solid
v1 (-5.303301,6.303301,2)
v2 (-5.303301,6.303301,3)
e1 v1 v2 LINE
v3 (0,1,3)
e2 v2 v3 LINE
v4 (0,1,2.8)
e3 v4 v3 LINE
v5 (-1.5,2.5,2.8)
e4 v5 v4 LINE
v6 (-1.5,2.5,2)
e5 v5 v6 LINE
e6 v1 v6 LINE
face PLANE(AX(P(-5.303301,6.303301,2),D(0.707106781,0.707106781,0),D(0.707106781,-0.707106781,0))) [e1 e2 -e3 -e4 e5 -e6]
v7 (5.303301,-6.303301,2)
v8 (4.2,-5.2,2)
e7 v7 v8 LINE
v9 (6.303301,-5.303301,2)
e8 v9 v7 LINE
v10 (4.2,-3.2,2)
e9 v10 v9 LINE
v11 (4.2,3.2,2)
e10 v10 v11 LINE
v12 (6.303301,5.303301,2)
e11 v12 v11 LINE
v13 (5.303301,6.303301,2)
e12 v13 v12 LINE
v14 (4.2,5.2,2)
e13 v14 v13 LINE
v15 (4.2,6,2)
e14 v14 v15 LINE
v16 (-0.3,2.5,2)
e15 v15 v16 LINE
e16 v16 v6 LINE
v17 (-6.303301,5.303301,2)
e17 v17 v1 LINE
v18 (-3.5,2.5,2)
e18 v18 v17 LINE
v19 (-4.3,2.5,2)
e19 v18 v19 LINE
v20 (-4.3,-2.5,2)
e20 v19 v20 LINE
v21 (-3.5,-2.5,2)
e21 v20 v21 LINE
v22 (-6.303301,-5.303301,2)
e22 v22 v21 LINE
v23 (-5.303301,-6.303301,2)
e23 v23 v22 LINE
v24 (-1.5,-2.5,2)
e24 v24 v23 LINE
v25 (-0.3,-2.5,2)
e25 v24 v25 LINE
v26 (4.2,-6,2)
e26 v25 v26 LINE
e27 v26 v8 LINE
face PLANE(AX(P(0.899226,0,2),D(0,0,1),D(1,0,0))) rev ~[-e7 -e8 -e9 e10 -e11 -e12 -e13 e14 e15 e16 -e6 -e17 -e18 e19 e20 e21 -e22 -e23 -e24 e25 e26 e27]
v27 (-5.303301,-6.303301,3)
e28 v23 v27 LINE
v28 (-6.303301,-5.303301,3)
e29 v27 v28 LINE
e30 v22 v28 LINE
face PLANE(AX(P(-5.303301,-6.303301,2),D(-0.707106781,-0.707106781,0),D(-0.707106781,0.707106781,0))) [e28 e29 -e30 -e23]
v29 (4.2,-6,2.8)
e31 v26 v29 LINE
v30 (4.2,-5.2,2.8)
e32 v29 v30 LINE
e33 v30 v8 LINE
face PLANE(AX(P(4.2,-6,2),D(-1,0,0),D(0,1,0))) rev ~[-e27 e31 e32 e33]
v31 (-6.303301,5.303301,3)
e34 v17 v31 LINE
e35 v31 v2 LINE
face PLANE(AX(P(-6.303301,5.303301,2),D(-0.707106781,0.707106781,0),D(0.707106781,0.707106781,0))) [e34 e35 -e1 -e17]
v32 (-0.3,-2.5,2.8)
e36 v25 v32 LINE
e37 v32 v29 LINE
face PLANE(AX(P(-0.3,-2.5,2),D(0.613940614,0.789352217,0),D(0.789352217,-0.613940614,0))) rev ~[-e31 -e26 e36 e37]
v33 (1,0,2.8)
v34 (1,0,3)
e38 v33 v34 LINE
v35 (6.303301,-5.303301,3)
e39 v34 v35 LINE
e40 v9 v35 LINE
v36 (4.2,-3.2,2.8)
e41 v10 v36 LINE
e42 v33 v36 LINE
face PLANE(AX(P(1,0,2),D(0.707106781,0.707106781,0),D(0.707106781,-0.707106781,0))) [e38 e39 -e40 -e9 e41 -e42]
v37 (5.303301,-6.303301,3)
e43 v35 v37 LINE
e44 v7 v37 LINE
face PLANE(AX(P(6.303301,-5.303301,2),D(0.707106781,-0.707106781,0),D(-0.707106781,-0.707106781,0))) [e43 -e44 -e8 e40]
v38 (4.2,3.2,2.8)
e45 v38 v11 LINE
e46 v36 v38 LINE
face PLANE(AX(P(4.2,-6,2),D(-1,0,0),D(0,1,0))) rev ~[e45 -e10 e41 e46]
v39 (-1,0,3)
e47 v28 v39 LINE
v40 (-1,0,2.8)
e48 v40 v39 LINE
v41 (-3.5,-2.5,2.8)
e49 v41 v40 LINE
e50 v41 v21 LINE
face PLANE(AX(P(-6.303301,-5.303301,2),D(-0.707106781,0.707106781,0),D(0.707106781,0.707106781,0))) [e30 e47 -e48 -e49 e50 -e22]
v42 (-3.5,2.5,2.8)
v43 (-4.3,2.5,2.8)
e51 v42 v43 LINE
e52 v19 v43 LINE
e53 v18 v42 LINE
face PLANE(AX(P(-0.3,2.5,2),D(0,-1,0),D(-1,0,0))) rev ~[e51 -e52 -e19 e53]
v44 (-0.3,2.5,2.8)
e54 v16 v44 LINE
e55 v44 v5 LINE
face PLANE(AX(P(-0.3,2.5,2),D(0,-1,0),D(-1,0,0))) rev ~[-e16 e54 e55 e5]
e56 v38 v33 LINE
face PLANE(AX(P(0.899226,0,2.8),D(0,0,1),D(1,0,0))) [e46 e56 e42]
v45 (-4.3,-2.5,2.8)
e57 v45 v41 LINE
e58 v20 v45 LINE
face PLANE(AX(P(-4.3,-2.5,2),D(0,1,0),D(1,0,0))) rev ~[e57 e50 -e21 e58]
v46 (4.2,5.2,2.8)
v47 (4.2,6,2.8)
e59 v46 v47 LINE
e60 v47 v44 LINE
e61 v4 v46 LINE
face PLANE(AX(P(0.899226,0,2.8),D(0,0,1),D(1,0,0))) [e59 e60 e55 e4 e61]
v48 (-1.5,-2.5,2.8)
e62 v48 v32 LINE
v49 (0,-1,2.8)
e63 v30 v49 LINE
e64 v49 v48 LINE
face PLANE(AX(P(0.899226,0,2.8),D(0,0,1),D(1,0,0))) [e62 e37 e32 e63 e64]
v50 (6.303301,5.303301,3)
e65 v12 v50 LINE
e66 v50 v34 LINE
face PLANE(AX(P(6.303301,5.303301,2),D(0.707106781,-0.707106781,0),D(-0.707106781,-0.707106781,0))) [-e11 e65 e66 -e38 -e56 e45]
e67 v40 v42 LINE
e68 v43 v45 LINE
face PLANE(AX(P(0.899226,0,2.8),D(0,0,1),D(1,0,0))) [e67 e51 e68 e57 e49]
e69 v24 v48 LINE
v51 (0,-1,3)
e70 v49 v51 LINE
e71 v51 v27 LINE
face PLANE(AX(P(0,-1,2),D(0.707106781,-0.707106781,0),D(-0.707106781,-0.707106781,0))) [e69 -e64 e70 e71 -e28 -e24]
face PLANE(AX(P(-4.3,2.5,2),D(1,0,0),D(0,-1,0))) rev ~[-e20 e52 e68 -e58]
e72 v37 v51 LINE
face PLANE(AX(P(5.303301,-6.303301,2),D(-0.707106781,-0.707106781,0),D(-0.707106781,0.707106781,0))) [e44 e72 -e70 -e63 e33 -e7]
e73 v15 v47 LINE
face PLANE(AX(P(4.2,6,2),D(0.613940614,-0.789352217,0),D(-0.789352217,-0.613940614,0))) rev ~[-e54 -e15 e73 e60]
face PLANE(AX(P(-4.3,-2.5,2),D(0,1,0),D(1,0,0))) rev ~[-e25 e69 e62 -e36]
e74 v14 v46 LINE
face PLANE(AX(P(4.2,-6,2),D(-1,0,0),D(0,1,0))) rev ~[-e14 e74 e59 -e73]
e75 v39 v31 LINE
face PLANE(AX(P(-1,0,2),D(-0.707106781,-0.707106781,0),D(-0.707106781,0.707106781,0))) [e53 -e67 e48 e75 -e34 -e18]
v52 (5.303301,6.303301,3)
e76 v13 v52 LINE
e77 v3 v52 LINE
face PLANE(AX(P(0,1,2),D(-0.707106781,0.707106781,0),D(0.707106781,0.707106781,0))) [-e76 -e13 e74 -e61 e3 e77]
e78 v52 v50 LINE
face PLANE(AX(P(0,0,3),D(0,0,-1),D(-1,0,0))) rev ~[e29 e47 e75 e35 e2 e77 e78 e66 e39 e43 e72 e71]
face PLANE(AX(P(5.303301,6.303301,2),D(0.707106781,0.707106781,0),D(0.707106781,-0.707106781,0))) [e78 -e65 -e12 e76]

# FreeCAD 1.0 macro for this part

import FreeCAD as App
import Part
import Sketcher
from FreeCAD import Vector
Q = App.Units.Quantity

doc = App.newDocument("Part")
body = doc.addObject("PartDesign::Body", "Body")

# Sketch on XY plane
sketch1 = body.newObject("Sketcher::SketchObject", "Sketch")
sketch1.AttachmentSupport = (doc.getObject("XY_Plane"), [""])
sketch1.MapMode = "FlatFace"
sketch1.addGeometry([
    Part.LineSegment(Vector(-14.5, 2.5, 0), Vector(-14.5, -2.5, 0)),  # 0
    Part.LineSegment(Vector(-14.5, -2.5, 0), Vector(-10.5, -2.5, 0)),  # 1
    Part.LineSegment(Vector(-10.5, -2.5, 0), Vector(-6, -6, 0)),  # 2
    Part.LineSegment(Vector(-6, -6, 0), Vector(-6, 6, 0)),  # 3
    Part.LineSegment(Vector(-6, 6, 0), Vector(-10.5, 2.5, 0)),  # 4
    Part.LineSegment(Vector(-10.5, 2.5, 0), Vector(-14.5, 2.5, 0)),  # 5
], False)
sketch1.addConstraint([
    Sketcher.Constraint("Coincident", 0, 2, 1, 1),
    Sketcher.Constraint("Coincident", 1, 2, 2, 1),
    Sketcher.Constraint("Coincident", 2, 2, 3, 1),
    Sketcher.Constraint("Coincident", 3, 2, 4, 1),
    Sketcher.Constraint("Coincident", 4, 2, 5, 1),
    Sketcher.Constraint("Coincident", 5, 2, 0, 1),
    Sketcher.Constraint("Vertical", 0),
    Sketcher.Constraint("Horizontal", 1),
    Sketcher.Constraint("Vertical", 3),
    Sketcher.Constraint("Horizontal", 5),
    Sketcher.Constraint("Symmetric", 1, 2, 4, 2, -1),
    Sketcher.Constraint("Equal", 2, 4),
    Sketcher.Constraint("DistanceX", 1, 1, 1, 2, Q("4 mm")),
    Sketcher.Constraint("DistanceY", 0, 2, 0, 1, Q("5 mm")),
    Sketcher.Constraint("DistanceY", 3, 1, 3, 2, Q("12 mm")),
    Sketcher.Constraint("DistanceX", 2, 2, -1, 1, Q("6 mm")),
    Sketcher.Constraint("DistanceX", 0, 2, -1, 1, Q("14.5 mm")),
])
pad1 = body.newObject("PartDesign::Pad", "Pad")
pad1.Profile = sketch1
pad1.Length = 0.8
body2 = doc.addObject("PartDesign::Body", "Body001")
doc.recompute()

body.Placement = App.Placement(Vector(10.2, 0, 2), App.Rotation(Vector(0, 0, 1), 0))
boolean = body2.newObject("PartDesign::Boolean", "Boolean")
boolean.Type = "Fuse"
boolean.addObjects([body])
body3 = doc.addObject("PartDesign::Body", "Body002")

# Sketch on XY plane
sketch2 = body3.newObject("Sketcher::SketchObject", "Sketch001")
sketch2.AttachmentSupport = (doc.getObject("XY_Plane002"), [""])
sketch2.MapMode = "FlatFace"
sketch2.addGeometry([
    Part.LineSegment(Vector(0, 1, 0), Vector(-5.3, 6.3, 0)),  # 0
    Part.LineSegment(Vector(-5.3, 6.3, 0), Vector(-6.3, 5.3, 0)),  # 1
    Part.LineSegment(Vector(-6.3, 5.3, 0), Vector(-1, 0, 0)),  # 2
    Part.LineSegment(Vector(-1, 0, 0), Vector(-6.3, -5.3, 0)),  # 3
    Part.LineSegment(Vector(-6.3, -5.3, 0), Vector(-5.3, -6.3, 0)),  # 4
    Part.LineSegment(Vector(-5.3, -6.3, 0), Vector(0, -1, 0)),  # 5
    Part.LineSegment(Vector(0, -1, 0), Vector(5.3, -6.3, 0)),  # 6
    Part.LineSegment(Vector(5.3, -6.3, 0), Vector(6.3, -5.3, 0)),  # 7
    Part.LineSegment(Vector(6.3, -5.3, 0), Vector(1, 0, 0)),  # 8
    Part.LineSegment(Vector(1, 0, 0), Vector(6.3, 5.3, 0)),  # 9
    Part.LineSegment(Vector(6.3, 5.3, 0), Vector(5.3, 6.3, 0)),  # 10
    Part.LineSegment(Vector(5.3, 6.3, 0), Vector(0, 1, 0)),  # 11
], False)
sketch2.addConstraint([
    Sketcher.Constraint("Coincident", 0, 2, 1, 1),
    Sketcher.Constraint("Coincident", 1, 2, 2, 1),
    Sketcher.Constraint("Coincident", 2, 2, 3, 1),
    Sketcher.Constraint("Coincident", 3, 2, 4, 1),
    Sketcher.Constraint("Coincident", 4, 2, 5, 1),
    Sketcher.Constraint("Coincident", 5, 2, 6, 1),
    Sketcher.Constraint("Coincident", 6, 2, 7, 1),
    Sketcher.Constraint("Coincident", 7, 2, 8, 1),
    Sketcher.Constraint("Coincident", 8, 2, 9, 1),
    Sketcher.Constraint("Coincident", 9, 2, 10, 1),
    Sketcher.Constraint("Coincident", 10, 2, 11, 1),
    Sketcher.Constraint("Coincident", 11, 2, 0, 1),
    Sketcher.Constraint("Symmetric", 0, 2, 6, 2, -1, 1),
    Sketcher.Constraint("Symmetric", 1, 2, 7, 2, -1, 1),
    Sketcher.Constraint("Symmetric", 2, 2, 8, 2, -1, 1),
    Sketcher.Constraint("Symmetric", 3, 2, 9, 2, -1, 1),
    Sketcher.Constraint("Symmetric", 4, 2, 10, 2, -1, 1),
    Sketcher.Constraint("Symmetric", 5, 2, 11, 2, -1, 1),
    Sketcher.Constraint("Symmetric", 4, 2, 6, 2, -2),
    Sketcher.Constraint("Symmetric", 3, 2, 7, 2, -2),
    Sketcher.Constraint("PointOnObject", 2, 2, -1),
    Sketcher.Constraint("PointOnObject", 5, 2, -2),
    Sketcher.Constraint("Perpendicular", 0, 1),
    Sketcher.Constraint("Perpendicular", 1, 2),
    Sketcher.Constraint("Perpendicular", 2, 3),
    Sketcher.Constraint("Equal", 0, 2),
    Sketcher.Constraint("DistanceX", 2, 2, -1, 1, Q("1 mm")),
    Sketcher.Constraint("Distance", 0, Q("7.5 mm")),
])
pad2 = body3.newObject("PartDesign::Pad", "Pad001")
pad2.Profile = sketch2
pad2.Length = 1
body4 = doc.addObject("PartDesign::Body", "Body003")
doc.recompute()

body3.Placement = App.Placement(Vector(0, 0, 2), App.Rotation(Vector(0, 0, 1), 0))
boolean2 = body4.newObject("PartDesign::Boolean", "Boolean001")
boolean2.Type = "Fuse"
boolean2.addObjects([body3])
doc.recompute()

boolean3 = body4.newObject("PartDesign::Boolean", "Boolean002")
boolean3.Type = "Fuse"
boolean3.addObjects([body2])

doc.recompute()
